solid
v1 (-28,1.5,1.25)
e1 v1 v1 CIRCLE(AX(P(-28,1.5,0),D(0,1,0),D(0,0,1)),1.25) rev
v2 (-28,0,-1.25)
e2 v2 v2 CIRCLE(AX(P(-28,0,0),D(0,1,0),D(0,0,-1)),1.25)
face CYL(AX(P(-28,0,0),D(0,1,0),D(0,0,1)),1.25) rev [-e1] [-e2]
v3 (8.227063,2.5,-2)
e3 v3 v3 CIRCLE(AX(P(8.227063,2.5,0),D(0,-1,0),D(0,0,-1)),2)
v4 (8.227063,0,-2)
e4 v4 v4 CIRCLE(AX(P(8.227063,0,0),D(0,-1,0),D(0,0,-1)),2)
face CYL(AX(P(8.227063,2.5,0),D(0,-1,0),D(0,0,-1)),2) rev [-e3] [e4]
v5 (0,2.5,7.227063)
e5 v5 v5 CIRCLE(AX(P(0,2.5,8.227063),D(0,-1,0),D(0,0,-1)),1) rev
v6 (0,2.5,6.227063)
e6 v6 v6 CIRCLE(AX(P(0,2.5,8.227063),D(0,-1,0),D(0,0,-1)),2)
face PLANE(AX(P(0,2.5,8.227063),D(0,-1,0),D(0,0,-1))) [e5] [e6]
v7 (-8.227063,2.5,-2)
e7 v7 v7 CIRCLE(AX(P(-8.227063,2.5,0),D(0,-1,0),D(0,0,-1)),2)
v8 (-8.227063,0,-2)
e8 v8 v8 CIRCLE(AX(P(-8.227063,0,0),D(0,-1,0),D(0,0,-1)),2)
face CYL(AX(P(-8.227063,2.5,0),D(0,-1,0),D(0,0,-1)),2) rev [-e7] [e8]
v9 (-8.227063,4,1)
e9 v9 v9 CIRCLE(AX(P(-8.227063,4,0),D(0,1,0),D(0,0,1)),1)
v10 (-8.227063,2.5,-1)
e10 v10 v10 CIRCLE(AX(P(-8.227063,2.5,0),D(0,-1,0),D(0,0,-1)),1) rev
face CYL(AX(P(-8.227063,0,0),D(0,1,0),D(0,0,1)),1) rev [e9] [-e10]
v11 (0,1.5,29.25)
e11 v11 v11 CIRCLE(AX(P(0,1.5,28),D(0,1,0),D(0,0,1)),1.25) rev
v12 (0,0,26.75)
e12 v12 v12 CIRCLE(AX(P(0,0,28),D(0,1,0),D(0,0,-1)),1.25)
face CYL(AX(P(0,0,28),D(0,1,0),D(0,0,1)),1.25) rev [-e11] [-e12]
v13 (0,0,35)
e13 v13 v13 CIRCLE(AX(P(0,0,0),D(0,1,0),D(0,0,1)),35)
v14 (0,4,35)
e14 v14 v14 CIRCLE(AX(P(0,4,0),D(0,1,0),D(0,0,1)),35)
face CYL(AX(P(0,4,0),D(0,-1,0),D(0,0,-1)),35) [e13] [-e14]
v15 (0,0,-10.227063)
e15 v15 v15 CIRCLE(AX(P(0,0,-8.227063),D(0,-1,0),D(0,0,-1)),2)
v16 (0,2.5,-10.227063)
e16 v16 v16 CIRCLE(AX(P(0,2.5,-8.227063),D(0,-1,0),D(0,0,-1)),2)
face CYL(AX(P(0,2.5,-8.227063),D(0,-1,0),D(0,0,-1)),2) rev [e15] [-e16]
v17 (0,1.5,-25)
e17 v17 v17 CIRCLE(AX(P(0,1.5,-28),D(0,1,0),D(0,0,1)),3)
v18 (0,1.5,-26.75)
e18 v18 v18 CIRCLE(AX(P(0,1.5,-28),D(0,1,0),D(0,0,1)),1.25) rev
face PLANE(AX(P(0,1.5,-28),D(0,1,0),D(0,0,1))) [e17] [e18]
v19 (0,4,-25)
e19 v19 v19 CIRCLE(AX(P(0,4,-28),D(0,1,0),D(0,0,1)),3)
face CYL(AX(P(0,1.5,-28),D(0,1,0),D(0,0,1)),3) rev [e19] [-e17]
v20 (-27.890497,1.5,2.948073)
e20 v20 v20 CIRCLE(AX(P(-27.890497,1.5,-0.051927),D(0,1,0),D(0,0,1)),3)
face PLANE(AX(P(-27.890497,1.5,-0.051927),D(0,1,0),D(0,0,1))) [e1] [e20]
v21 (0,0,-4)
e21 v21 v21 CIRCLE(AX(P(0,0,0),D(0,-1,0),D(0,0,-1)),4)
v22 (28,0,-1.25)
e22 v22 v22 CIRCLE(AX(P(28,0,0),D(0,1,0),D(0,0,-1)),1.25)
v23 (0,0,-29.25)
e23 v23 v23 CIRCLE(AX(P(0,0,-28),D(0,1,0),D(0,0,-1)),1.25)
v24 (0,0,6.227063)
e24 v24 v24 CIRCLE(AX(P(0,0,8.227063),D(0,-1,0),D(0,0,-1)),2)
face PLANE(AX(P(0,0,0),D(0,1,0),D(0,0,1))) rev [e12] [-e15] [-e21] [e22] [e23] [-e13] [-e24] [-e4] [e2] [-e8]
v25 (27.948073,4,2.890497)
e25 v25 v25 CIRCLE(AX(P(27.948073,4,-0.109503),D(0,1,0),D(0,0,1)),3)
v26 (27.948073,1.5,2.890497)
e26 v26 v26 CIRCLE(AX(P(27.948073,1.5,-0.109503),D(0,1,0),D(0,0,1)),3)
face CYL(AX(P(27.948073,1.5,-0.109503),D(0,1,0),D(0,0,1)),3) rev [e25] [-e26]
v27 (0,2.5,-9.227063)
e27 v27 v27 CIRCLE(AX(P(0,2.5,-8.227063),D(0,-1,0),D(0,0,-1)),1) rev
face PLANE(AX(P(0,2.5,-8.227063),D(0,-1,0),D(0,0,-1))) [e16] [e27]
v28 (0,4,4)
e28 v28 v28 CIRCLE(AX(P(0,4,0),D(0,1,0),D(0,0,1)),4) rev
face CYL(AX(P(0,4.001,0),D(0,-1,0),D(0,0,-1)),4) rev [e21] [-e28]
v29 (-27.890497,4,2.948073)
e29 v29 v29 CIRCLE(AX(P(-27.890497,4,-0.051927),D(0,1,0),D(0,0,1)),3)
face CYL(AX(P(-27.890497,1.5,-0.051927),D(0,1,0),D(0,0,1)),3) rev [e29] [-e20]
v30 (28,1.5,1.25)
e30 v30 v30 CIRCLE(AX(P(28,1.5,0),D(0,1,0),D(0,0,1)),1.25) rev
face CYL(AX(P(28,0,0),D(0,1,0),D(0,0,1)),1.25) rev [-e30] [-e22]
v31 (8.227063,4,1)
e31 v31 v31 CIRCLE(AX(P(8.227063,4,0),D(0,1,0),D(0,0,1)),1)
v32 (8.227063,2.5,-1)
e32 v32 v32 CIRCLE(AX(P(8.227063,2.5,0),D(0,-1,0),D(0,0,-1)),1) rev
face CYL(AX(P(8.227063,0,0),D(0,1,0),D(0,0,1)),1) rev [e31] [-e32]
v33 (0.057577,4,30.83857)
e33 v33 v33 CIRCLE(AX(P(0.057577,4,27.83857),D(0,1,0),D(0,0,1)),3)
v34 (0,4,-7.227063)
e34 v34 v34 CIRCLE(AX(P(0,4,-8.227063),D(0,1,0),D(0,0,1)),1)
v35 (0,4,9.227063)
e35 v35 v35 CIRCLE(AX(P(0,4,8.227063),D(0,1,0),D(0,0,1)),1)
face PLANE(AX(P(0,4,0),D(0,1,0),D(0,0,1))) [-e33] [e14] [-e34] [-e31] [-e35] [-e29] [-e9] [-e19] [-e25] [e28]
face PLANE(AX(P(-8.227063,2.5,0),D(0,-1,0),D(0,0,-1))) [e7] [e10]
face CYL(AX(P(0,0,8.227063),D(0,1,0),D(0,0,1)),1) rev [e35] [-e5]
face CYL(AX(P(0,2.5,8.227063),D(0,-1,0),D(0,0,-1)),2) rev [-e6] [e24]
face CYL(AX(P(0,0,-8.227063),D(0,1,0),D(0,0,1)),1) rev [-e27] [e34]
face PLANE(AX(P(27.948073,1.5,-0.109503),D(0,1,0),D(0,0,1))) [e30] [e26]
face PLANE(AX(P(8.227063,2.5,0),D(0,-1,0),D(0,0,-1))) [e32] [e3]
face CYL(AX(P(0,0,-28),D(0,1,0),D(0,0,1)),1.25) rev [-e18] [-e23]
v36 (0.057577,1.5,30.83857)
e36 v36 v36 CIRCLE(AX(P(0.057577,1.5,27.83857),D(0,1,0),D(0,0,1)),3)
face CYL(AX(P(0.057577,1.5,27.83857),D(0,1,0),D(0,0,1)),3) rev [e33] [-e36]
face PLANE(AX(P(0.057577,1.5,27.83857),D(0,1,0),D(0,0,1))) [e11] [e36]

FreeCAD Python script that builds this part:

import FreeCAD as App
import Part
import Sketcher
Q = App.Units.Quantity

doc = App.newDocument("Part")
body = doc.addObject("PartDesign::Body", "Body")

# Sketch on XZ plane
sketch1 = doc.addObject("Sketcher::SketchObject", "Sketch")
body.addObject(sketch1)
sketch1.AttachmentSupport = (doc.XZ_Plane, [""])
sketch1.MapMode = "FlatFace"
sketch1.addGeometry(Part.Circle(App.Vector(0, 0, 0), App.Vector(0, 0, 1), 35), False)
sketch1.addConstraint([
    Sketcher.Constraint("Coincident", 0, 3, -1, 1),
    Sketcher.Constraint("Diameter", 0, Q("70 mm")),
])
pad1 = doc.addObject("PartDesign::Pad", "Pad")
body.addObject(pad1)
pad1.Profile = sketch1
pad1.Length = 4
pad1.Reversed = True

# Sketch on XZ plane
sketch2 = doc.addObject("Sketcher::SketchObject", "Sketch001")
body.addObject(sketch2)
sketch2.AttachmentSupport = (doc.XZ_Plane, [""])
sketch2.MapMode = "FlatFace"
sketch2.AttachmentOffset = App.Placement(App.Vector(0, 0, -4), App.Rotation())
sketch2.addGeometry([
    Part.Circle(App.Vector(0, -8.2, 0), App.Vector(0, 0, 1), 1),  # 0
    Part.Circle(App.Vector(8.2, 0, 0), App.Vector(0, 0, 1), 1),  # 1
    Part.Circle(App.Vector(0, 8.2, 0), App.Vector(0, 0, 1), 1),  # 2
    Part.Circle(App.Vector(-8.2, 0, 0), App.Vector(0, 0, 1), 1),  # 3
    Part.Circle(App.Vector(0, 28, 0), App.Vector(0, 0, 1), 1.2),  # 4
    Part.Circle(App.Vector(-28, 0, 0), App.Vector(0, 0, 1), 1.2),  # 5
    Part.Circle(App.Vector(0, -28, 0), App.Vector(0, 0, 1), 1.2),  # 6
    Part.Circle(App.Vector(28, 0, 0), App.Vector(0, 0, 1), 1.2),  # 7
], False)
sketch2.addConstraint([
    Sketcher.Constraint("Equal", 0, 1),
    Sketcher.Constraint("Equal", 1, 2),
    Sketcher.Constraint("Equal", 2, 3),
    Sketcher.Constraint("Equal", 4, 5),
    Sketcher.Constraint("Equal", 5, 6),
    Sketcher.Constraint("Equal", 6, 7),
    Sketcher.Constraint("Symmetric", 0, 3, 2, 3, -1, 1),
    Sketcher.Constraint("Symmetric", 1, 3, 3, 3, -1, 1),
    Sketcher.Constraint("Symmetric", 4, 3, 6, 3, -1, 1),
    Sketcher.Constraint("Symmetric", 5, 3, 7, 3, -1, 1),
    Sketcher.Constraint("PointOnObject", 0, 3, -2),
    Sketcher.Constraint("PointOnObject", 1, 3, -1),
    Sketcher.Constraint("PointOnObject", 4, 3, -2),
    Sketcher.Constraint("PointOnObject", 5, 3, -1),
    Sketcher.Constraint("Diameter", 0, Q("2 mm")),
    Sketcher.Constraint("Diameter", 4, Q("2.5 mm")),
    Sketcher.Constraint("DistanceY", -1, 1, 4, 3, Q("28 mm")),
    Sketcher.Constraint("DistanceX", 5, 3, -1, 1, Q("28 mm")),
    Sketcher.Constraint("DistanceY", 0, 3, -1, 1, Q("8.227063 mm")),
    Sketcher.Constraint("DistanceX", -1, 1, 1, 3, Q("8.227063 mm")),
])
pocket1 = doc.addObject("PartDesign::Pocket", "Pocket")
body.addObject(pocket1)
pocket1.Profile = sketch2
pocket1.Type = "ThroughAll"
pocket1.Reversed = True

# Sketch on XZ plane
sketch3 = doc.addObject("Sketcher::SketchObject", "Sketch002")
body.addObject(sketch3)
sketch3.AttachmentSupport = (doc.XZ_Plane, [""])
sketch3.MapMode = "FlatFace"
sketch3.addGeometry(Part.Circle(App.Vector(0, 0, 0), App.Vector(0, 0, 1), 4), False)
sketch3.addConstraint([
    Sketcher.Constraint("Coincident", 0, 3, -1, 1),
    Sketcher.Constraint("Diameter", 0, Q("8 mm")),
])
pocket2 = doc.addObject("PartDesign::Pocket", "Pocket001")
body.addObject(pocket2)
pocket2.Profile = sketch3
pocket2.Type = "UpToFirst"

# Sketch on XZ plane
sketch4 = doc.addObject("Sketcher::SketchObject", "Sketch003")
body.addObject(sketch4)
sketch4.AttachmentSupport = (doc.XZ_Plane, [""])
sketch4.MapMode = "FlatFace"
sketch4.AttachmentOffset = App.Placement(App.Vector(0, 0, -4), App.Rotation())
sketch4.addGeometry([
    Part.Circle(App.Vector(0, -28, 0), App.Vector(0, 0, 1), 3),
    Part.Circle(App.Vector(27.9, -0.1, 0), App.Vector(0, 0, 1), 3),
    Part.Circle(App.Vector(0.1, 27.8, 0), App.Vector(0, 0, 1), 3),
    Part.Circle(App.Vector(-27.9, -0.1, 0), App.Vector(0, 0, 1), 3),
], False)
sketch4.addConstraint([
    Sketcher.Constraint("Equal", 0, 1),
    Sketcher.Constraint("Equal", 1, 2),
    Sketcher.Constraint("Equal", 2, 3),
    Sketcher.Constraint("PointOnObject", 0, 3, -2),
    Sketcher.Constraint("Diameter", 0, Q("6 mm")),
    Sketcher.Constraint("DistanceY", 0, 3, -1, 1, Q("28 mm")),
    Sketcher.Constraint("DistanceY", -1, 1, 2, 3, Q("27.83857 mm")),
    Sketcher.Constraint("DistanceX", 3, 3, 1, 3, Q("55.83857 mm")),
    Sketcher.Constraint("DistanceX", -1, 1, 1, 3, Q("27.948073 mm")),
    Sketcher.Constraint("DistanceY", 1, 3, -1, 1, Q("0.109503 mm")),
    Sketcher.Constraint("DistanceX", -1, 1, 2, 3, Q("0.057577 mm")),
    Sketcher.Constraint("DistanceY", 3, 3, -1, 1, Q("0.051927 mm")),
])
pocket3 = doc.addObject("PartDesign::Pocket", "Pocket002")
body.addObject(pocket3)
pocket3.Profile = sketch4
pocket3.Length = 2.5
pocket3.Reversed = True

# Sketch on XZ plane
sketch5 = doc.addObject("Sketcher::SketchObject", "Sketch004")
body.addObject(sketch5)
sketch5.AttachmentSupport = (doc.XZ_Plane, [""])
sketch5.MapMode = "FlatFace"
sketch5.addGeometry([
    Part.Circle(App.Vector(0, 8.2, 0), App.Vector(0, 0, 1), 2),
    Part.Circle(App.Vector(8.2, 0, 0), App.Vector(0, 0, 1), 2),
    Part.Circle(App.Vector(0, -8.2, 0), App.Vector(0, 0, 1), 2),
    Part.Circle(App.Vector(-8.2, 0, 0), App.Vector(0, 0, 1), 2),
], False)
sketch5.addConstraint([
    Sketcher.Constraint("Equal", 0, 1),
    Sketcher.Constraint("Equal", 1, 2),
    Sketcher.Constraint("Equal", 2, 3),
    Sketcher.Constraint("Symmetric", 0, 3, 2, 3, -1, 1),
    Sketcher.Constraint("Symmetric", 1, 3, 3, 3, -1, 1),
    Sketcher.Constraint("PointOnObject", 0, 3, -2),
    Sketcher.Constraint("PointOnObject", 1, 3, -1),
    Sketcher.Constraint("Diameter", 0, Q("4 mm")),
    Sketcher.Constraint("DistanceY", -1, 1, 0, 3, Q("8.227063 mm")),
    Sketcher.Constraint("DistanceX", -1, 1, 1, 3, Q("8.227063 mm")),
])
pocket4 = doc.addObject("PartDesign::Pocket", "Pocket003")
body.addObject(pocket4)
pocket4.Profile = sketch5
pocket4.Length = 2.5

doc.recompute()
